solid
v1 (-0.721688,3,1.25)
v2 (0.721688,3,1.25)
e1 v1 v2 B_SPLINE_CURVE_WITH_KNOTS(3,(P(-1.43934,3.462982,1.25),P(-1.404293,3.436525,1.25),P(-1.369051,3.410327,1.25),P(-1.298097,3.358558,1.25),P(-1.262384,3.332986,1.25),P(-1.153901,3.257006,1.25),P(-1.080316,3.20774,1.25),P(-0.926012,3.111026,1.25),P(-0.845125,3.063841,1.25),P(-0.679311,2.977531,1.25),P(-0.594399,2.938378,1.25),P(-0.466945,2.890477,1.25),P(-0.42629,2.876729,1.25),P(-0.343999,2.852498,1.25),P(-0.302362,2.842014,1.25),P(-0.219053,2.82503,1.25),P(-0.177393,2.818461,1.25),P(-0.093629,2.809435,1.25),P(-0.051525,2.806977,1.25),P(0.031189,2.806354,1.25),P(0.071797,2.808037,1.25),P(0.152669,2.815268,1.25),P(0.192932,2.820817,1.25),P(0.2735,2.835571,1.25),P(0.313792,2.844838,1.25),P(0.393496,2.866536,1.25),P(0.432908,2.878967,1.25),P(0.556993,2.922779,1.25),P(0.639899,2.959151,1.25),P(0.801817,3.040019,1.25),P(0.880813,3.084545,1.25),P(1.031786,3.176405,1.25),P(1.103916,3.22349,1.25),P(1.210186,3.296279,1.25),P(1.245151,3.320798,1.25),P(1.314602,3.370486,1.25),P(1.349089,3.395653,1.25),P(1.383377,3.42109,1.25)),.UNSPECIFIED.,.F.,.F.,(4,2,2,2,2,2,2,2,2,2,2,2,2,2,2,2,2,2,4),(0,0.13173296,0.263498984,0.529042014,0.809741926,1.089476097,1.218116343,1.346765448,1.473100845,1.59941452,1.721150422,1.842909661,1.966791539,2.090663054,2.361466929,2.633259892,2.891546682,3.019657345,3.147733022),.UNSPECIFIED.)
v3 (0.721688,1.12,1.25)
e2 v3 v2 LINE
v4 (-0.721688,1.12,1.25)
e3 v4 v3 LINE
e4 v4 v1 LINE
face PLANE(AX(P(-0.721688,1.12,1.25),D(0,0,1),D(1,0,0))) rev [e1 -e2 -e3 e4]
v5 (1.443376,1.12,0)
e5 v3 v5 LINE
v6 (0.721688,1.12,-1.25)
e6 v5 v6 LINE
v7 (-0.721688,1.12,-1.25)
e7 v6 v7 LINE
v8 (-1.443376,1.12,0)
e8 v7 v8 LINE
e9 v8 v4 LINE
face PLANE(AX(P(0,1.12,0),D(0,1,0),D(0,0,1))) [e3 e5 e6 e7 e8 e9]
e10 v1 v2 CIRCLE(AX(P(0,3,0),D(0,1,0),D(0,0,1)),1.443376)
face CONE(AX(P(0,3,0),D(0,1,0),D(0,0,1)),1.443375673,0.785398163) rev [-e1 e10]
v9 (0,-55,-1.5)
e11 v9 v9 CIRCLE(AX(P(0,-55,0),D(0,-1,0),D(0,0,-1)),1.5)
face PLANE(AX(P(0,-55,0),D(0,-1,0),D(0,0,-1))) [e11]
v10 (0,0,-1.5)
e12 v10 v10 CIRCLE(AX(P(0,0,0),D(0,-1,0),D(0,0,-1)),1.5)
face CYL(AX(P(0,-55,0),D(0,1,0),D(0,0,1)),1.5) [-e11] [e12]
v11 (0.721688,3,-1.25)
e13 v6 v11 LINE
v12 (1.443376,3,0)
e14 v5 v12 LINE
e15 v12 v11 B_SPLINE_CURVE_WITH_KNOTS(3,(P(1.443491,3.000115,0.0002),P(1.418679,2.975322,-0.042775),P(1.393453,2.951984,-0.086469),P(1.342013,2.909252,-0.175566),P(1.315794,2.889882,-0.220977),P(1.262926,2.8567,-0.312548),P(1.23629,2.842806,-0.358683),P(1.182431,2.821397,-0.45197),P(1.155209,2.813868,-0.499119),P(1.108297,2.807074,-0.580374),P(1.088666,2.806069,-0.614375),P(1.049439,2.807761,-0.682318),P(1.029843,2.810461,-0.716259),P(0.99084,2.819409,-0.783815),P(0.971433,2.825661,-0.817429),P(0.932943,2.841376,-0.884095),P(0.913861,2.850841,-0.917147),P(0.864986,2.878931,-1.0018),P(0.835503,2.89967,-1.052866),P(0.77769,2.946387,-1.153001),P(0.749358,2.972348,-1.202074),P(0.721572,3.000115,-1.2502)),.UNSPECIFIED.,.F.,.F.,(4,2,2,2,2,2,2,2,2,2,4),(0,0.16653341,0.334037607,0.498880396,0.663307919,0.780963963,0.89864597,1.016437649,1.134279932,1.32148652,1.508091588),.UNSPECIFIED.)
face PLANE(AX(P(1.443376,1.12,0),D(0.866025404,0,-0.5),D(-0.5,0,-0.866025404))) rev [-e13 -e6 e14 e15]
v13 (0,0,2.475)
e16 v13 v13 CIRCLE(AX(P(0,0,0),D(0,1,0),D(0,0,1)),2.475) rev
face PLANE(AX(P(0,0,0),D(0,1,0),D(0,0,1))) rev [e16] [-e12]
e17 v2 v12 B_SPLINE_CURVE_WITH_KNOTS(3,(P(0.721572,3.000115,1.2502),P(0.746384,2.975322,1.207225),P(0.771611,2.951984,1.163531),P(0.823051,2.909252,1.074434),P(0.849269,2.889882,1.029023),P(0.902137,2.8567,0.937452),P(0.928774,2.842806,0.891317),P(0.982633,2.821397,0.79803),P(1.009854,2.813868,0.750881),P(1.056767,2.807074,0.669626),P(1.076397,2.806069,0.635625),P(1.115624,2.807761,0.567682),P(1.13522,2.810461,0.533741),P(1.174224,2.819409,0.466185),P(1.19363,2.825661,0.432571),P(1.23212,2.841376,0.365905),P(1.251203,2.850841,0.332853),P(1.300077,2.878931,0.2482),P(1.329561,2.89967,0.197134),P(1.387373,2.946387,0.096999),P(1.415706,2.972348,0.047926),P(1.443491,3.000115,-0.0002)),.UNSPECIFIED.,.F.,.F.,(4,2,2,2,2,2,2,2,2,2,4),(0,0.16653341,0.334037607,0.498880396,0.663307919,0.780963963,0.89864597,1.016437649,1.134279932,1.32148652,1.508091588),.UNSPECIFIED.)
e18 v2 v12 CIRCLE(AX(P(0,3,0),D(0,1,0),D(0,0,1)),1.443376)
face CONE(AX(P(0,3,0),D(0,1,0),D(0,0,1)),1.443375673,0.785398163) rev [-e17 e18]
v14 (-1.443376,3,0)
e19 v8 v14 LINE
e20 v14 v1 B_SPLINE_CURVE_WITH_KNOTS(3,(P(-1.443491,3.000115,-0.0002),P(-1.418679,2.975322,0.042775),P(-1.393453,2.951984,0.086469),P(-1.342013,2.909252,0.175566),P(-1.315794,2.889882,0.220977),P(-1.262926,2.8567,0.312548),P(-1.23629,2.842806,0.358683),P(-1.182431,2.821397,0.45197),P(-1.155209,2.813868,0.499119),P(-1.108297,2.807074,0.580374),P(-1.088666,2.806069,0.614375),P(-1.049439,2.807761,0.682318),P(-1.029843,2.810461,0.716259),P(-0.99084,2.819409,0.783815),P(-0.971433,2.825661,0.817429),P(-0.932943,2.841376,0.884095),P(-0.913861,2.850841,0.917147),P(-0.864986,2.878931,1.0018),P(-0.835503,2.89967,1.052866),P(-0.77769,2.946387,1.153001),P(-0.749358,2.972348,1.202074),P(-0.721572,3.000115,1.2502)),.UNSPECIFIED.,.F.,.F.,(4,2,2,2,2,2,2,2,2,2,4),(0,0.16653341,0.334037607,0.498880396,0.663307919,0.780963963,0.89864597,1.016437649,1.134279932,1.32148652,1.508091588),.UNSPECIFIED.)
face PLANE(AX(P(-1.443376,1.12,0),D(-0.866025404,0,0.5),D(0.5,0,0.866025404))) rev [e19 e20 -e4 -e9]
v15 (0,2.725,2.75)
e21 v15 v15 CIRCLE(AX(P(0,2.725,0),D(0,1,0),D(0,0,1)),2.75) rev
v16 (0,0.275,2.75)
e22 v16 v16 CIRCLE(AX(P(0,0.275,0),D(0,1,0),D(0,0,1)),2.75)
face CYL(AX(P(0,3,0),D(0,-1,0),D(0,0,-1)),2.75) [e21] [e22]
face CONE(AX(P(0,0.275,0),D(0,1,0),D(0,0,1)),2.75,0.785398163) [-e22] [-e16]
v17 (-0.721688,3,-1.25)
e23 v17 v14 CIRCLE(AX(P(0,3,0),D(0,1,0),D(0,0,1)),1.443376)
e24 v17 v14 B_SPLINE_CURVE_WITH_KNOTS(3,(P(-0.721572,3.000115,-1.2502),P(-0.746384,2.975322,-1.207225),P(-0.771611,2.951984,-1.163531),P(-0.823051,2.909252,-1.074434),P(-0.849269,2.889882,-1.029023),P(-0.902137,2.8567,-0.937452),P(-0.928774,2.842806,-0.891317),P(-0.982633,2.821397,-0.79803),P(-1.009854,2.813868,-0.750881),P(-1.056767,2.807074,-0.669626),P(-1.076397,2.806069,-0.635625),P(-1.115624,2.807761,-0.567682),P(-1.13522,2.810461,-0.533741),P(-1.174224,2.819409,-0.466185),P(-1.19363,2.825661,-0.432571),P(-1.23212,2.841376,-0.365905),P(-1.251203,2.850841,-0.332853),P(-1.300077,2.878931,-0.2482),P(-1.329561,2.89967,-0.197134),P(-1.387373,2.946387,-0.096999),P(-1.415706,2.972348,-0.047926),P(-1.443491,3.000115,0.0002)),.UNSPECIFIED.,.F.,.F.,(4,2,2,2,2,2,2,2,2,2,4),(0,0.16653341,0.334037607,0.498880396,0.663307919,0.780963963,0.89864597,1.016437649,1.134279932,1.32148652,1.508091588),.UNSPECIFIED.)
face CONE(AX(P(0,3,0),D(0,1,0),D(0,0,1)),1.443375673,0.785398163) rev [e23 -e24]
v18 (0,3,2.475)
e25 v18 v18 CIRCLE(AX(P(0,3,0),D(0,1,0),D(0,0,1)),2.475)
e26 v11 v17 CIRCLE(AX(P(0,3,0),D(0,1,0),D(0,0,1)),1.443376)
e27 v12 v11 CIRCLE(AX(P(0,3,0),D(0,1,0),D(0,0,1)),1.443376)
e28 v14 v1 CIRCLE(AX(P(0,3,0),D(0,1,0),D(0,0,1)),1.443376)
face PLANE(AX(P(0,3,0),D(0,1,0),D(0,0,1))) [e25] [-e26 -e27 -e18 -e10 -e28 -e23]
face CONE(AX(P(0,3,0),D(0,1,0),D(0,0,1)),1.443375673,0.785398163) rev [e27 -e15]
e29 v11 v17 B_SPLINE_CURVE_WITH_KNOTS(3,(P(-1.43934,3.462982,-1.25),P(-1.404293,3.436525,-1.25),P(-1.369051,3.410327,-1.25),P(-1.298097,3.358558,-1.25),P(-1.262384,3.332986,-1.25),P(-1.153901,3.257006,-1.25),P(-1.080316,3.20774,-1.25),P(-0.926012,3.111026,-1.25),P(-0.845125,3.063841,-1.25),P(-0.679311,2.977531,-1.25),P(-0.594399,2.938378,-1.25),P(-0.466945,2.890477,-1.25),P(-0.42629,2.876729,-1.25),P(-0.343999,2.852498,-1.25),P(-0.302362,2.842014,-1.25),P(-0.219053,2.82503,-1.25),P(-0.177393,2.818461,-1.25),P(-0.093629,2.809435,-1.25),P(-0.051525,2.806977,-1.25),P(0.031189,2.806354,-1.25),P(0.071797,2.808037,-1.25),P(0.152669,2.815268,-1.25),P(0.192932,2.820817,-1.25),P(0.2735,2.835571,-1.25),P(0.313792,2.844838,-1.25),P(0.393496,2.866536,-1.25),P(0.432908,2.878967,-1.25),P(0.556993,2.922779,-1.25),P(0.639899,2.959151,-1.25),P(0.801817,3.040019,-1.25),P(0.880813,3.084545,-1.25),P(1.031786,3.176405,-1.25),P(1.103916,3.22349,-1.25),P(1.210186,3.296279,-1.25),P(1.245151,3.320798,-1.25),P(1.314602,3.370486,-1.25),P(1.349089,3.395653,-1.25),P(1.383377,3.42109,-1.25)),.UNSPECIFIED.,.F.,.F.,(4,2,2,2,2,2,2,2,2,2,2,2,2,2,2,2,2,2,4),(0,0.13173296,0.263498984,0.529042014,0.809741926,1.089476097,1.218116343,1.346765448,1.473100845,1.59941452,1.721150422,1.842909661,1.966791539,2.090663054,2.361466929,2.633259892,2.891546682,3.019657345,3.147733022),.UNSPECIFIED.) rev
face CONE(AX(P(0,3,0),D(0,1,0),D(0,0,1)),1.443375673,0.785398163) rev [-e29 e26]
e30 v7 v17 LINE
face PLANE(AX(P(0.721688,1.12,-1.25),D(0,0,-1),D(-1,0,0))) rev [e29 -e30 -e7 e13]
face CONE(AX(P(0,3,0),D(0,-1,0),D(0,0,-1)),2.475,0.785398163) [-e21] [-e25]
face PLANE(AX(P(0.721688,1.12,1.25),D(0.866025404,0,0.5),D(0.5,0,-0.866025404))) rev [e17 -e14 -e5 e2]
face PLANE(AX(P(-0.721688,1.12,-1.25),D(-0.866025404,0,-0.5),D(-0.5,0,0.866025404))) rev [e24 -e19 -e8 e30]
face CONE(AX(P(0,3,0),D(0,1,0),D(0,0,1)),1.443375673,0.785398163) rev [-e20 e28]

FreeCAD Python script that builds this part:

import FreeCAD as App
import Part
import Sketcher
from FreeCAD import Vector
Q = App.Units.Quantity


def edges_at(feature, points):
    """Names of the edges that pass closest to the given points."""
    edges = feature.Shape.Edges
    near = lambda p: min(range(len(edges)), key=lambda i: edges[i].distToShape(Part.Vertex(*p))[0])
    return sorted({f"Edge{near(p) + 1}" for p in points})

doc = App.newDocument("Part")
params = doc.addObject("Spreadsheet::Sheet", "Params")
for row, (alias, value) in enumerate([
    ("sketch1_diameter", "5.5 mm"),
    ("pad1_length", "3 mm"),
    ("pocket1_length", "1.88 mm"),
    ("groove_angle", "360 deg"),
    ("chamfer_size", "0.275 mm"),
    ("sketch4_diameter", "3 mm"),
    ("pad2_length", "55 mm"),
], start=1):
    params.set(f"A{row}", alias)
    params.set(f"B{row}", "=" + value)
    params.setAlias(f"B{row}", alias)

body = doc.addObject("PartDesign::Body", "Body")

# Sketch on XZ plane
sketch1 = doc.addObject("Sketcher::SketchObject", "Sketch")
body.addObject(sketch1)
sketch1.AttachmentSupport = (doc.XZ_Plane, [""])
sketch1.MapMode = "FlatFace"
sketch1.addGeometry(Part.Circle(Vector(0, 0, 0), Vector(0, 0, 1), 2.75), False)
sketch1.addConstraint(Sketcher.Constraint("Coincident", 0, 3, -1, 1))
sketch1.addConstraint(Sketcher.Constraint("Diameter", 0, Q("5.5 mm")))
sketch1.setExpression("Constraints[1]", "Params.sketch1_diameter")
pad1 = doc.addObject("PartDesign::Pad", "Pad")
body.addObject(pad1)
pad1.Profile = sketch1
pad1.setExpression("Length", "Params.pad1_length")
pad1.Reversed = True

# Sketch on XZ plane
sketch2 = doc.addObject("Sketcher::SketchObject", "Sketch001")
body.addObject(sketch2)
sketch2.AttachmentSupport = (doc.XZ_Plane, [""])
sketch2.MapMode = "FlatFace"
sketch2.AttachmentOffset = App.Placement(Vector(0, 0, -3), App.Rotation())
sketch2.addGeometry(Part.LineSegment(Vector(0.721688, -1.25, 0), Vector(-0.721688, -1.25, 0)), False)
sketch2.addGeometry(Part.LineSegment(Vector(-0.721688, -1.25, 0), Vector(-1.443376, 0, 0)), False)
sketch2.addGeometry(Part.LineSegment(Vector(-1.443376, 0, 0), Vector(-0.721688, 1.25, 0)), False)
sketch2.addGeometry(Part.LineSegment(Vector(-0.721688, 1.25, 0), Vector(0.721688, 1.25, 0)), False)
sketch2.addGeometry(Part.LineSegment(Vector(0.721688, 1.25, 0), Vector(1.443376, 0, 0)), False)
sketch2.addGeometry(Part.LineSegment(Vector(1.443376, 0, 0), Vector(0.721688, -1.25, 0)), False)
sketch2.addConstraint(Sketcher.Constraint("Coincident", 0, 2, 1, 1))
sketch2.addConstraint(Sketcher.Constraint("Coincident", 1, 2, 2, 1))
sketch2.addConstraint(Sketcher.Constraint("Coincident", 2, 2, 3, 1))
sketch2.addConstraint(Sketcher.Constraint("Coincident", 3, 2, 4, 1))
sketch2.addConstraint(Sketcher.Constraint("Coincident", 4, 2, 5, 1))
sketch2.addConstraint(Sketcher.Constraint("Coincident", 5, 2, 0, 1))
sketch2.addConstraint(Sketcher.Constraint("Horizontal", 0))
sketch2.addConstraint(Sketcher.Constraint("Horizontal", 3))
sketch2.addConstraint(Sketcher.Constraint("Symmetric", 0, 2, 3, 2, -1, 1))
sketch2.addConstraint(Sketcher.Constraint("Symmetric", 1, 2, 4, 2, -1, 1))
sketch2.addConstraint(Sketcher.Constraint("PointOnObject", 1, 2, -1))
sketch2.addConstraint(Sketcher.Constraint("Parallel", 2, 5))
sketch2.addConstraint(Sketcher.Constraint("Vertical", 0, 2, 2, 2))
sketch2.addConstraint(Sketcher.Constraint("Angle", 1, Q("120 deg")))
sketch2.addConstraint(Sketcher.Constraint("DistanceY", 0, 2, 2, 2, Q("2.5 mm")))
sketch2.addConstraint(Sketcher.Constraint("DistanceX", 0, 2, 0, 1, Q("1.443376 mm")))
pocket1 = doc.addObject("PartDesign::Pocket", "Pocket")
body.addObject(pocket1)
pocket1.Profile = sketch2
pocket1.setExpression("Length", "Params.pocket1_length")
pocket1.Reversed = True

# Sketch on YZ plane
sketch3 = doc.addObject("Sketcher::SketchObject", "Sketch002")
body.addObject(sketch3)
sketch3.AttachmentSupport = (doc.YZ_Plane, [""])
sketch3.MapMode = "FlatFace"
sketch3.addGeometry(Part.LineSegment(Vector(3, 0, 0), Vector(3, 1.443376, 0)), False)
sketch3.addGeometry(Part.LineSegment(Vector(3, 1.443376, 0), Vector(1.556624, 0, 0)), False)
sketch3.addGeometry(Part.LineSegment(Vector(1.556624, 0, 0), Vector(3, 0, 0)), False)
sketch3.addConstraint(Sketcher.Constraint("Coincident", 0, 2, 1, 1))
sketch3.addConstraint(Sketcher.Constraint("Coincident", 1, 2, 2, 1))
sketch3.addConstraint(Sketcher.Constraint("Coincident", 2, 2, 0, 1))
sketch3.addConstraint(Sketcher.Constraint("Vertical", 0))
sketch3.addConstraint(Sketcher.Constraint("Horizontal", 2))
sketch3.addConstraint(Sketcher.Constraint("PointOnObject", 1, 2, -1))
sketch3.addConstraint(Sketcher.Constraint("Equal", 2, 0))
sketch3.addConstraint(Sketcher.Constraint("DistanceX", -1, 1, 0, 2, Q("3 mm")))
sketch3.addConstraint(Sketcher.Constraint("Distance", 1, Q("2.041241 mm")))
groove = doc.addObject("PartDesign::Groove", "Groove")
body.addObject(groove)
groove.Profile = sketch3
groove.ReferenceAxis = (sketch3, ["H_Axis"])
groove.setExpression("Angle", "Params.groove_angle")
doc.recompute()

chamfer = doc.addObject("PartDesign::Chamfer", "Chamfer")
body.addObject(chamfer)
chamfer.Base = (groove, edges_at(groove, [(0, 0, -2.75), (0, 3, -2.75)]))
chamfer.setExpression("Size", "Params.chamfer_size")

# Sketch on XZ plane
sketch4 = doc.addObject("Sketcher::SketchObject", "Sketch003")
body.addObject(sketch4)
sketch4.AttachmentSupport = (doc.XZ_Plane, [""])
sketch4.MapMode = "FlatFace"
sketch4.addGeometry(Part.Circle(Vector(0, 0, 0), Vector(0, 0, 1), 1.5), False)
sketch4.addConstraint(Sketcher.Constraint("Coincident", 0, 3, -1, 1))
sketch4.addConstraint(Sketcher.Constraint("Diameter", 0, Q("3 mm")))
sketch4.setExpression("Constraints[1]", "Params.sketch4_diameter")
pad2 = doc.addObject("PartDesign::Pad", "Pad001")
body.addObject(pad2)
pad2.Profile = sketch4
pad2.setExpression("Length", "Params.pad2_length")

doc.recompute()
